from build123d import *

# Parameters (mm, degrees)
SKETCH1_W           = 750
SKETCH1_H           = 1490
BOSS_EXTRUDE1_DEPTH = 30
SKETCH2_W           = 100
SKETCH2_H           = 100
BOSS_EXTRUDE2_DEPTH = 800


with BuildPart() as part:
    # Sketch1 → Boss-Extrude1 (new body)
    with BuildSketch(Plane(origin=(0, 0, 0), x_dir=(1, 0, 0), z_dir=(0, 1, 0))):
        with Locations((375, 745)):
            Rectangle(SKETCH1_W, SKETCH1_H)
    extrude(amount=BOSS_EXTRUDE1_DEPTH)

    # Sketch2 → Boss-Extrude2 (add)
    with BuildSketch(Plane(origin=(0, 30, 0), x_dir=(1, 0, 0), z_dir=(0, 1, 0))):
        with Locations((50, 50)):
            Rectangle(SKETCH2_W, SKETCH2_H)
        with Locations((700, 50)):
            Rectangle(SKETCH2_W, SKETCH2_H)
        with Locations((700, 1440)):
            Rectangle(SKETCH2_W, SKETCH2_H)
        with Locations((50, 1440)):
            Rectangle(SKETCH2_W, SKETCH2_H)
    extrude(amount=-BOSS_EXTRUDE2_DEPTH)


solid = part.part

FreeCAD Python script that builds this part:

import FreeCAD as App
import Part
import Sketcher
from FreeCAD import Vector


def add_polygon(sketch, points):
    """Adds a closed chain of lines whose ends are joined by coincident constraints."""
    first, n = sketch.GeometryCount, len(points)
    for a, b in zip(points, points[1:] + points[:1]):
        sketch.addGeometry(Part.LineSegment(App.Vector(*a, 0), App.Vector(*b, 0)), False)
    for i in range(n):
        sketch.addConstraint(Sketcher.Constraint("Coincident", first + i, 2, first + (i + 1) % n, 1))

doc = App.newDocument("Part")
body = doc.addObject("PartDesign::Body", "Body")

sketch1 = body.newObject("Sketcher::SketchObject", "Sketch")
sketch1.AttachmentSupport = (doc.getObject("XZ_Plane"), [""])
sketch1.MapMode = "FlatFace"
add_polygon(sketch1, [(0, -1490), (0, 0), (750, 0), (750, -1490)])
sketch1.addConstraint(Sketcher.Constraint("Vertical", 0))
sketch1.addConstraint(Sketcher.Constraint("Horizontal", 1))
sketch1.addConstraint(Sketcher.Constraint("Vertical", 2))
sketch1.addConstraint(Sketcher.Constraint("Horizontal", 3))
sketch1.addConstraint(Sketcher.Constraint("Coincident", 0, 2, -1, 1))
sketch1.addConstraint(Sketcher.Constraint("DistanceX", 1, 1, 1, 2, 750.0))
sketch1.addConstraint(Sketcher.Constraint("DistanceY", 0, 1, 0, 2, 1490.0))
pad1 = body.newObject("PartDesign::Pad", "Pad")
pad1.Profile = sketch1
pad1.Length = 30
pad1.Reversed = True

sketch2 = body.newObject("Sketcher::SketchObject", "Sketch001")
sketch2.AttachmentSupport = (doc.getObject("XZ_Plane"), [""])
sketch2.MapMode = "FlatFace"
sketch2.AttachmentOffset = App.Placement(Vector(0, 0, -30), App.Rotation())
add_polygon(sketch2, [(0, -100), (0, 0), (100, 0), (100, -100)])
add_polygon(sketch2, [(650, -100), (650, 0), (750, 0), (750, -100)])
add_polygon(sketch2, [(650, -1490), (650, -1390), (750, -1390), (750, -1490)])
add_polygon(sketch2, [(0, -1490), (0, -1390), (100, -1390), (100, -1490)])
sketch2.addConstraint(Sketcher.Constraint("Vertical", 0))
sketch2.addConstraint(Sketcher.Constraint("Horizontal", 1))
sketch2.addConstraint(Sketcher.Constraint("Vertical", 2))
sketch2.addConstraint(Sketcher.Constraint("Horizontal", 3))
sketch2.addConstraint(Sketcher.Constraint("Vertical", 4))
sketch2.addConstraint(Sketcher.Constraint("Horizontal", 5))
sketch2.addConstraint(Sketcher.Constraint("Vertical", 6))
sketch2.addConstraint(Sketcher.Constraint("Horizontal", 7))
sketch2.addConstraint(Sketcher.Constraint("Vertical", 8))
sketch2.addConstraint(Sketcher.Constraint("Horizontal", 9))
sketch2.addConstraint(Sketcher.Constraint("Vertical", 10))
sketch2.addConstraint(Sketcher.Constraint("Horizontal", 11))
sketch2.addConstraint(Sketcher.Constraint("Vertical", 12))
sketch2.addConstraint(Sketcher.Constraint("Horizontal", 13))
sketch2.addConstraint(Sketcher.Constraint("Vertical", 14))
sketch2.addConstraint(Sketcher.Constraint("Horizontal", 15))
sketch2.addConstraint(Sketcher.Constraint("Coincident", 0, 2, -1, 1))
sketch2.addConstraint(Sketcher.Constraint("PointOnObject", 4, 2, -1))
sketch2.addConstraint(Sketcher.Constraint("PointOnObject", 12, 2, -2))
sketch2.addConstraint(Sketcher.Constraint("Horizontal", 3, 2, 6, 2))
sketch2.addConstraint(Sketcher.Constraint("Horizontal", 9, 2, 12, 2))
sketch2.addConstraint(Sketcher.Constraint("Horizontal", 11, 2, 14, 2))
sketch2.addConstraint(Sketcher.Constraint("Vertical", 7, 2, 8, 2))
sketch2.addConstraint(Sketcher.Constraint("Vertical", 6, 2, 9, 2))
sketch2.addConstraint(Sketcher.Constraint("Vertical", 2, 2, 13, 2))
sketch2.addConstraint(Sketcher.Constraint("Equal", 3, 5))
sketch2.addConstraint(Sketcher.Constraint("Equal", 15, 0))
sketch2.addConstraint(Sketcher.Constraint("Equal", 6, 8))
sketch2.addConstraint(Sketcher.Constraint("DistanceX", 1, 1, 1, 2, 100.0))
sketch2.addConstraint(Sketcher.Constraint("DistanceX", -1, 1, 4, 2, 650.0))
sketch2.addConstraint(Sketcher.Constraint("DistanceY", 8, 2, -1, 1, 1390.0))
pad2 = body.newObject("PartDesign::Pad", "Pad001")
pad2.Profile = sketch2
pad2.Length = 800

doc.recompute()
